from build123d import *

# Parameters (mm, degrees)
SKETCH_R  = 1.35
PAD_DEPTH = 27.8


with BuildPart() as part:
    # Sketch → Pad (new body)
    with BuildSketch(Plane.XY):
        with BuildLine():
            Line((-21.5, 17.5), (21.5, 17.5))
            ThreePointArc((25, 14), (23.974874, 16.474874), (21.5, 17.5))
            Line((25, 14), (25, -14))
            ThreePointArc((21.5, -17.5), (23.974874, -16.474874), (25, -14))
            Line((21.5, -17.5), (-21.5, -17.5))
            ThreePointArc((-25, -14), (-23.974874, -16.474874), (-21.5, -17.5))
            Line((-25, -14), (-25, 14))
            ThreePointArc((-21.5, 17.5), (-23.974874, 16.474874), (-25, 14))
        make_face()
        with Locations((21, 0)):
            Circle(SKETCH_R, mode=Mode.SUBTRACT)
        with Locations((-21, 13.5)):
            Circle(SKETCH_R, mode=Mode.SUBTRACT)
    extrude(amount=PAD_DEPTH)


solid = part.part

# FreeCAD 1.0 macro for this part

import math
import FreeCAD as App
import Part
import Sketcher

V = App.Vector

doc = App.newDocument("Part")
body = doc.addObject("PartDesign::Body", "Body")

# Sketch on XY plane
sketch1 = doc.addObject("Sketcher::SketchObject", "Sketch")
body.addObject(sketch1)
sketch1.AttachmentSupport = (doc.XY_Plane, [""])
sketch1.MapMode = "FlatFace"
sketch1.addGeometry(Part.LineSegment(V(21.5, 17.5, 0), V(-21.5, 17.5, 0)), False)
sketch1.addGeometry(Part.ArcOfCircle(Part.Circle(V(-21.5, 14, 0), V(0, 0, 1), 3.5), math.radians(90), math.radians(180)), False)
sketch1.addGeometry(Part.LineSegment(V(-25, 14, 0), V(-25, -14, 0)), False)
sketch1.addGeometry(Part.ArcOfCircle(Part.Circle(V(-21.5, -14, 0), V(0, 0, 1), 3.5), math.radians(180), math.radians(270)), False)
sketch1.addGeometry(Part.LineSegment(V(-21.5, -17.5, 0), V(21.5, -17.5, 0)), False)
sketch1.addGeometry(Part.ArcOfCircle(Part.Circle(V(21.5, -14, 0), V(0, 0, 1), 3.5), math.radians(-90), math.radians(0)), False)
sketch1.addGeometry(Part.LineSegment(V(25, -14, 0), V(25, 14, 0)), False)
sketch1.addGeometry(Part.ArcOfCircle(Part.Circle(V(21.5, 14, 0), V(0, 0, 1), 3.5), math.radians(0), math.radians(90)), False)
sketch1.addGeometry(Part.Circle(V(21, 0, 0), V(0, 0, 1), 1.4), False)
sketch1.addGeometry(Part.Circle(V(-21, 13.5, 0), V(0, 0, 1), 1.4), False)
sketch1.addConstraint(Sketcher.Constraint("Tangent", 0, 2, 1, 1))
sketch1.addConstraint(Sketcher.Constraint("Tangent", 1, 2, 2, 1))
sketch1.addConstraint(Sketcher.Constraint("Tangent", 2, 2, 3, 1))
sketch1.addConstraint(Sketcher.Constraint("Tangent", 3, 2, 4, 1))
sketch1.addConstraint(Sketcher.Constraint("Tangent", 4, 2, 5, 1))
sketch1.addConstraint(Sketcher.Constraint("Tangent", 5, 2, 6, 1))
sketch1.addConstraint(Sketcher.Constraint("Tangent", 6, 2, 7, 1))
sketch1.addConstraint(Sketcher.Constraint("Tangent", 7, 2, 0, 1))
sketch1.addConstraint(Sketcher.Constraint("Horizontal", 0))
sketch1.addConstraint(Sketcher.Constraint("Vertical", 2))
sketch1.addConstraint(Sketcher.Constraint("Horizontal", 4))
sketch1.addConstraint(Sketcher.Constraint("Vertical", 6))
sketch1.addConstraint(Sketcher.Constraint("Equal", 1, 3))
sketch1.addConstraint(Sketcher.Constraint("Equal", 3, 5))
sketch1.addConstraint(Sketcher.Constraint("Equal", 5, 7))
sketch1.addConstraint(Sketcher.Constraint("Equal", 8, 9))
sketch1.addConstraint(Sketcher.Constraint("Symmetric", 1, 3, 5, 3, -1, 1))
sketch1.addConstraint(Sketcher.Constraint("PointOnObject", 8, 3, -1))
sketch1.addConstraint(Sketcher.Constraint("Diameter", 8, 2.7))
sketch1.addConstraint(Sketcher.Constraint("Radius", 1, 3.499999))
sketch1.addConstraint(Sketcher.Constraint("DistanceX", 0, 2, 0, 1, 43.0))
sketch1.addConstraint(Sketcher.Constraint("DistanceY", 2, 2, 2, 1, 28.0))
sketch1.addConstraint(Sketcher.Constraint("DistanceX", -1, 1, 8, 3, 21.0))
sketch1.addConstraint(Sketcher.Constraint("DistanceX", 9, 3, -1, 1, 21.0))
sketch1.addConstraint(Sketcher.Constraint("DistanceY", 9, 3, 0, 2, 4.0))
pad1 = doc.addObject("PartDesign::Pad", "Pad")
body.addObject(pad1)
pad1.Profile = sketch1
pad1.Length = 27.8

doc.recompute()
